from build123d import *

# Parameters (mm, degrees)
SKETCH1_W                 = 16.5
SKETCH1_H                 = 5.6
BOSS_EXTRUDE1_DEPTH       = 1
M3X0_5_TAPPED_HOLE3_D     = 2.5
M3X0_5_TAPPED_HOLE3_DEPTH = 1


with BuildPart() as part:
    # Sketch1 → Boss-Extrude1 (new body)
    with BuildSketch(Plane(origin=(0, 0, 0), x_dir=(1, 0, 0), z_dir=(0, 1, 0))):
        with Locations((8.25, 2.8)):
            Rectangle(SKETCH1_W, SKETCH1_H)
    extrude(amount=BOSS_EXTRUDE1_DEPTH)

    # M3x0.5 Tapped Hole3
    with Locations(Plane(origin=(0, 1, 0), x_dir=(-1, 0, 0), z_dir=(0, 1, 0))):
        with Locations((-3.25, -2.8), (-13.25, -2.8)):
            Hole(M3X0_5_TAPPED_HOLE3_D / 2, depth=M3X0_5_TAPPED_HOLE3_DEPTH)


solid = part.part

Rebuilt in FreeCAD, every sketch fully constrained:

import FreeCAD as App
import Part
import Sketcher
Q = App.Units.Quantity


def add_polygon(sketch, points):
    """Adds a closed chain of lines whose ends are joined by coincident constraints."""
    first, n = sketch.GeometryCount, len(points)
    for a, b in zip(points, points[1:] + points[:1]):
        sketch.addGeometry(Part.LineSegment(App.Vector(*a, 0), App.Vector(*b, 0)), False)
    for i in range(n):
        sketch.addConstraint(Sketcher.Constraint("Coincident", first + i, 2, first + (i + 1) % n, 1))

doc = App.newDocument("Part")
body = doc.addObject("PartDesign::Body", "Body")

# Sketch on XZ plane
sketch1 = body.newObject("Sketcher::SketchObject", "Sketch")
sketch1.AttachmentSupport = (doc.getObject("XZ_Plane"), [""])
sketch1.MapMode = "FlatFace"
add_polygon(sketch1, [(0, -5.6), (0, 0), (16.5, 0), (16.5, -5.6)])  # lines 0-3
sketch1.addConstraint(Sketcher.Constraint("Vertical", 0))
sketch1.addConstraint(Sketcher.Constraint("Horizontal", 1))
sketch1.addConstraint(Sketcher.Constraint("Vertical", 2))
sketch1.addConstraint(Sketcher.Constraint("Horizontal", 3))
sketch1.addConstraint(Sketcher.Constraint("Coincident", 0, 2, -1, 1))
sketch1.addConstraint(Sketcher.Constraint("DistanceX", 1, 1, 1, 2, Q("16.5 mm")))
sketch1.addConstraint(Sketcher.Constraint("DistanceY", 0, 1, 0, 2, Q("5.6 mm")))
pad1 = body.newObject("PartDesign::Pad", "Pad")
pad1.Profile = sketch1
pad1.Length = 1
pad1.Reversed = True

# Sketch on XZ plane
sketch2 = body.newObject("Sketcher::SketchObject", "Sketch001")
sketch2.AttachmentSupport = (doc.getObject("XZ_Plane"), [""])
sketch2.MapMode = "FlatFace"
sketch2.AttachmentOffset = App.Placement(App.Vector(0, 0, -1), App.Rotation())
sketch2.addGeometry(Part.Circle(App.Vector(3.25, -2.8, 0), App.Vector(0, 0, 1), 1.25), False)
sketch2.addGeometry(Part.Circle(App.Vector(13.25, -2.8, 0), App.Vector(0, 0, 1), 1.25), False)
sketch2.addConstraint(Sketcher.Constraint("Equal", 0, 1))
sketch2.addConstraint(Sketcher.Constraint("Horizontal", 0, 3, 1, 3))
sketch2.addConstraint(Sketcher.Constraint("Diameter", 0, Q("2.5 mm")))
sketch2.addConstraint(Sketcher.Constraint("DistanceX", 0, 3, 1, 3, Q("10 mm")))
sketch2.addConstraint(Sketcher.Constraint("DistanceY", 0, 3, -1, 1, Q("2.8 mm")))
sketch2.addConstraint(Sketcher.Constraint("DistanceX", -1, 1, 0, 3, Q("3.25 mm")))
doc.recompute()
hole = body.newObject("PartDesign::Hole", "Hole")
hole.Profile = sketch2
hole.ThreadType = "None"
hole.Diameter = 2.5
hole.DepthType = "Dimension"
hole.Depth = 1
hole.DrillPoint = "Flat"
hole.Reversed = True

doc.recompute()
